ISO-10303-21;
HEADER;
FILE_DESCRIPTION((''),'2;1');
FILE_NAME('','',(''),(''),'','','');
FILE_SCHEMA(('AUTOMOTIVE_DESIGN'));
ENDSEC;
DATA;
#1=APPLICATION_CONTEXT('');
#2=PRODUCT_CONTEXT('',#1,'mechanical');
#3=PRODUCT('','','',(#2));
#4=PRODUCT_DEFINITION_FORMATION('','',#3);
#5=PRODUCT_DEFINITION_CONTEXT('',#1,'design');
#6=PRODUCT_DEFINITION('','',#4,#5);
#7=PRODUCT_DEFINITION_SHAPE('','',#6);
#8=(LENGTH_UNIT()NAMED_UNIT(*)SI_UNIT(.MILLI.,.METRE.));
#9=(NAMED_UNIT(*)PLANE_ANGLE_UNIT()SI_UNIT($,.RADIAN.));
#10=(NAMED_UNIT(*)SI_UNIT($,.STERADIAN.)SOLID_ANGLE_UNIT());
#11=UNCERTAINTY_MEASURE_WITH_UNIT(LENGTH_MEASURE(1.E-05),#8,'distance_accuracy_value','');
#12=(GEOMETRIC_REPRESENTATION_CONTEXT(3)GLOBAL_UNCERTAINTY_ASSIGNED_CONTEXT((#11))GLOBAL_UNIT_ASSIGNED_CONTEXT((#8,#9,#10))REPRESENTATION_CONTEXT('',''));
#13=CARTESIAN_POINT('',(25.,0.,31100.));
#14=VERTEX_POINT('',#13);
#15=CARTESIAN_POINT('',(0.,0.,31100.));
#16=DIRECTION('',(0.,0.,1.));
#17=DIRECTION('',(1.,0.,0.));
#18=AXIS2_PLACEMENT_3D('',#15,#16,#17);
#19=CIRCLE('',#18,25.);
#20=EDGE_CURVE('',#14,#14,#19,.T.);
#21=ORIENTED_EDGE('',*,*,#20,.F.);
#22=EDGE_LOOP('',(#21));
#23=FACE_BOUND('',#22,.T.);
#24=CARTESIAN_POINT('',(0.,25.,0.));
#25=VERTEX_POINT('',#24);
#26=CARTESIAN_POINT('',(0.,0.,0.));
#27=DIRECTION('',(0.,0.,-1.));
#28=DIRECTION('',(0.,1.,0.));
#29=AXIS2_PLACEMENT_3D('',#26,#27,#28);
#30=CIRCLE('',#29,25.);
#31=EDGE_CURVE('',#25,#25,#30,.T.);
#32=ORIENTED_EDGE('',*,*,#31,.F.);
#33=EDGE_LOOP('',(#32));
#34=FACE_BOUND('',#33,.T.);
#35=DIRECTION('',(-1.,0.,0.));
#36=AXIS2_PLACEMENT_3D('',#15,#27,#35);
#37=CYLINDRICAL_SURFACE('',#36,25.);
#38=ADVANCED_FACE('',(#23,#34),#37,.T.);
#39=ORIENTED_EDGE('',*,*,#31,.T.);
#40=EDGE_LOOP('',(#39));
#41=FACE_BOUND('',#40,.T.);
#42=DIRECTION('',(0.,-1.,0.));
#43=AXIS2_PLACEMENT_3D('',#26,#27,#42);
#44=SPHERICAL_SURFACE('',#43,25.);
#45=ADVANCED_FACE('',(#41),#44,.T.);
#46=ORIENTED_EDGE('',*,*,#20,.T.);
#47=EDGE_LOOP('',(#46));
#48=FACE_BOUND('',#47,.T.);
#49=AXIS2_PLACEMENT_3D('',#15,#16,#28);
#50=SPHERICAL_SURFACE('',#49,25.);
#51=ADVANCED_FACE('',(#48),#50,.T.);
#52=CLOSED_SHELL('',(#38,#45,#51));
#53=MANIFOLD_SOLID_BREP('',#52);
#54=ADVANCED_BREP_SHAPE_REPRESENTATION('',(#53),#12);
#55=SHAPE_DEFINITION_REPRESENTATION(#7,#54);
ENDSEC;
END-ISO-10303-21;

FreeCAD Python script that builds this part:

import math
import FreeCAD as App
import Part
import Sketcher

doc = App.newDocument("Part")
body = doc.addObject("PartDesign::Body", "Body")

sketch1 = doc.addObject("Sketcher::SketchObject", "Sketch")
body.addObject(sketch1)
sketch1.AttachmentSupport = (doc.XY_Plane, [""])
sketch1.MapMode = "FlatFace"
sketch1.addGeometry(Part.Circle(App.Vector(0, 0, 0), App.Vector(0, 0, 1), 25), False)
sketch1.addConstraint([
    Sketcher.Constraint("Coincident", 0, 3, -1, 1),
    Sketcher.Constraint("Diameter", 0, 50.0),
])
pad1 = doc.addObject("PartDesign::Pad", "Pad")
body.addObject(pad1)
pad1.Profile = sketch1
pad1.Length = 31100

sketch2 = doc.addObject("Sketcher::SketchObject", "Sketch001")
body.addObject(sketch2)
sketch2.AttachmentSupport = (doc.YZ_Plane, [""])
sketch2.MapMode = "FlatFace"
sketch2.addGeometry([
    Part.LineSegment(App.Vector(0, 31100, 0), App.Vector(25, 31100, 0)),
    Part.ArcOfCircle(Part.Circle(App.Vector(0, 31100, 0), App.Vector(0, 0, 1), 25), math.radians(0), math.radians(90)),
    Part.LineSegment(App.Vector(0, 31125, 0), App.Vector(0, 31100, 0)),
], False)
sketch2.addConstraint([
    Sketcher.Constraint("Coincident", 0, 2, 1, 1),
    Sketcher.Constraint("Coincident", 1, 2, 2, 1),
    Sketcher.Constraint("Coincident", 2, 2, 0, 1),
    Sketcher.Constraint("Horizontal", 0),
    Sketcher.Constraint("Vertical", 2),
    Sketcher.Constraint("Coincident", 2, 2, 1, 3),
    Sketcher.Constraint("PointOnObject", 1, 3, -2),
    Sketcher.Constraint("Radius", 1, 25.0),
    Sketcher.Constraint("DistanceY", -1, 1, 1, 3, 31100.0),
])
revolution = doc.addObject("PartDesign::Revolution", "Revolution")
body.addObject(revolution)
revolution.Profile = sketch2
revolution.ReferenceAxis = (sketch2, ["V_Axis"])
revolution.Angle = 360

sketch3 = doc.addObject("Sketcher::SketchObject", "Sketch002")
body.addObject(sketch3)
sketch3.AttachmentSupport = (doc.YZ_Plane, [""])
sketch3.MapMode = "FlatFace"
sketch3.addGeometry([
    Part.LineSegment(App.Vector(0, 0, 0), App.Vector(0, -25, 0)),
    Part.ArcOfCircle(Part.Circle(App.Vector(0, 0, 0), App.Vector(0, 0, 1), 25), math.radians(-90), math.radians(0)),
    Part.LineSegment(App.Vector(25, 0, 0), App.Vector(0, 0, 0)),
], False)
sketch3.addConstraint([
    Sketcher.Constraint("Coincident", 0, 2, 1, 1),
    Sketcher.Constraint("Coincident", 1, 2, 2, 1),
    Sketcher.Constraint("Coincident", 2, 2, 0, 1),
    Sketcher.Constraint("Vertical", 0),
    Sketcher.Constraint("Horizontal", 2),
    Sketcher.Constraint("Coincident", 1, 3, -1, 1),
    Sketcher.Constraint("Coincident", 2, 2, -1, 1),
    Sketcher.Constraint("Radius", 1, 25.0),
])
revolution2 = doc.addObject("PartDesign::Revolution", "Revolution001")
body.addObject(revolution2)
revolution2.Profile = sketch3
revolution2.ReferenceAxis = (sketch3, ["V_Axis"])
revolution2.Angle = 360

doc.recompute()
